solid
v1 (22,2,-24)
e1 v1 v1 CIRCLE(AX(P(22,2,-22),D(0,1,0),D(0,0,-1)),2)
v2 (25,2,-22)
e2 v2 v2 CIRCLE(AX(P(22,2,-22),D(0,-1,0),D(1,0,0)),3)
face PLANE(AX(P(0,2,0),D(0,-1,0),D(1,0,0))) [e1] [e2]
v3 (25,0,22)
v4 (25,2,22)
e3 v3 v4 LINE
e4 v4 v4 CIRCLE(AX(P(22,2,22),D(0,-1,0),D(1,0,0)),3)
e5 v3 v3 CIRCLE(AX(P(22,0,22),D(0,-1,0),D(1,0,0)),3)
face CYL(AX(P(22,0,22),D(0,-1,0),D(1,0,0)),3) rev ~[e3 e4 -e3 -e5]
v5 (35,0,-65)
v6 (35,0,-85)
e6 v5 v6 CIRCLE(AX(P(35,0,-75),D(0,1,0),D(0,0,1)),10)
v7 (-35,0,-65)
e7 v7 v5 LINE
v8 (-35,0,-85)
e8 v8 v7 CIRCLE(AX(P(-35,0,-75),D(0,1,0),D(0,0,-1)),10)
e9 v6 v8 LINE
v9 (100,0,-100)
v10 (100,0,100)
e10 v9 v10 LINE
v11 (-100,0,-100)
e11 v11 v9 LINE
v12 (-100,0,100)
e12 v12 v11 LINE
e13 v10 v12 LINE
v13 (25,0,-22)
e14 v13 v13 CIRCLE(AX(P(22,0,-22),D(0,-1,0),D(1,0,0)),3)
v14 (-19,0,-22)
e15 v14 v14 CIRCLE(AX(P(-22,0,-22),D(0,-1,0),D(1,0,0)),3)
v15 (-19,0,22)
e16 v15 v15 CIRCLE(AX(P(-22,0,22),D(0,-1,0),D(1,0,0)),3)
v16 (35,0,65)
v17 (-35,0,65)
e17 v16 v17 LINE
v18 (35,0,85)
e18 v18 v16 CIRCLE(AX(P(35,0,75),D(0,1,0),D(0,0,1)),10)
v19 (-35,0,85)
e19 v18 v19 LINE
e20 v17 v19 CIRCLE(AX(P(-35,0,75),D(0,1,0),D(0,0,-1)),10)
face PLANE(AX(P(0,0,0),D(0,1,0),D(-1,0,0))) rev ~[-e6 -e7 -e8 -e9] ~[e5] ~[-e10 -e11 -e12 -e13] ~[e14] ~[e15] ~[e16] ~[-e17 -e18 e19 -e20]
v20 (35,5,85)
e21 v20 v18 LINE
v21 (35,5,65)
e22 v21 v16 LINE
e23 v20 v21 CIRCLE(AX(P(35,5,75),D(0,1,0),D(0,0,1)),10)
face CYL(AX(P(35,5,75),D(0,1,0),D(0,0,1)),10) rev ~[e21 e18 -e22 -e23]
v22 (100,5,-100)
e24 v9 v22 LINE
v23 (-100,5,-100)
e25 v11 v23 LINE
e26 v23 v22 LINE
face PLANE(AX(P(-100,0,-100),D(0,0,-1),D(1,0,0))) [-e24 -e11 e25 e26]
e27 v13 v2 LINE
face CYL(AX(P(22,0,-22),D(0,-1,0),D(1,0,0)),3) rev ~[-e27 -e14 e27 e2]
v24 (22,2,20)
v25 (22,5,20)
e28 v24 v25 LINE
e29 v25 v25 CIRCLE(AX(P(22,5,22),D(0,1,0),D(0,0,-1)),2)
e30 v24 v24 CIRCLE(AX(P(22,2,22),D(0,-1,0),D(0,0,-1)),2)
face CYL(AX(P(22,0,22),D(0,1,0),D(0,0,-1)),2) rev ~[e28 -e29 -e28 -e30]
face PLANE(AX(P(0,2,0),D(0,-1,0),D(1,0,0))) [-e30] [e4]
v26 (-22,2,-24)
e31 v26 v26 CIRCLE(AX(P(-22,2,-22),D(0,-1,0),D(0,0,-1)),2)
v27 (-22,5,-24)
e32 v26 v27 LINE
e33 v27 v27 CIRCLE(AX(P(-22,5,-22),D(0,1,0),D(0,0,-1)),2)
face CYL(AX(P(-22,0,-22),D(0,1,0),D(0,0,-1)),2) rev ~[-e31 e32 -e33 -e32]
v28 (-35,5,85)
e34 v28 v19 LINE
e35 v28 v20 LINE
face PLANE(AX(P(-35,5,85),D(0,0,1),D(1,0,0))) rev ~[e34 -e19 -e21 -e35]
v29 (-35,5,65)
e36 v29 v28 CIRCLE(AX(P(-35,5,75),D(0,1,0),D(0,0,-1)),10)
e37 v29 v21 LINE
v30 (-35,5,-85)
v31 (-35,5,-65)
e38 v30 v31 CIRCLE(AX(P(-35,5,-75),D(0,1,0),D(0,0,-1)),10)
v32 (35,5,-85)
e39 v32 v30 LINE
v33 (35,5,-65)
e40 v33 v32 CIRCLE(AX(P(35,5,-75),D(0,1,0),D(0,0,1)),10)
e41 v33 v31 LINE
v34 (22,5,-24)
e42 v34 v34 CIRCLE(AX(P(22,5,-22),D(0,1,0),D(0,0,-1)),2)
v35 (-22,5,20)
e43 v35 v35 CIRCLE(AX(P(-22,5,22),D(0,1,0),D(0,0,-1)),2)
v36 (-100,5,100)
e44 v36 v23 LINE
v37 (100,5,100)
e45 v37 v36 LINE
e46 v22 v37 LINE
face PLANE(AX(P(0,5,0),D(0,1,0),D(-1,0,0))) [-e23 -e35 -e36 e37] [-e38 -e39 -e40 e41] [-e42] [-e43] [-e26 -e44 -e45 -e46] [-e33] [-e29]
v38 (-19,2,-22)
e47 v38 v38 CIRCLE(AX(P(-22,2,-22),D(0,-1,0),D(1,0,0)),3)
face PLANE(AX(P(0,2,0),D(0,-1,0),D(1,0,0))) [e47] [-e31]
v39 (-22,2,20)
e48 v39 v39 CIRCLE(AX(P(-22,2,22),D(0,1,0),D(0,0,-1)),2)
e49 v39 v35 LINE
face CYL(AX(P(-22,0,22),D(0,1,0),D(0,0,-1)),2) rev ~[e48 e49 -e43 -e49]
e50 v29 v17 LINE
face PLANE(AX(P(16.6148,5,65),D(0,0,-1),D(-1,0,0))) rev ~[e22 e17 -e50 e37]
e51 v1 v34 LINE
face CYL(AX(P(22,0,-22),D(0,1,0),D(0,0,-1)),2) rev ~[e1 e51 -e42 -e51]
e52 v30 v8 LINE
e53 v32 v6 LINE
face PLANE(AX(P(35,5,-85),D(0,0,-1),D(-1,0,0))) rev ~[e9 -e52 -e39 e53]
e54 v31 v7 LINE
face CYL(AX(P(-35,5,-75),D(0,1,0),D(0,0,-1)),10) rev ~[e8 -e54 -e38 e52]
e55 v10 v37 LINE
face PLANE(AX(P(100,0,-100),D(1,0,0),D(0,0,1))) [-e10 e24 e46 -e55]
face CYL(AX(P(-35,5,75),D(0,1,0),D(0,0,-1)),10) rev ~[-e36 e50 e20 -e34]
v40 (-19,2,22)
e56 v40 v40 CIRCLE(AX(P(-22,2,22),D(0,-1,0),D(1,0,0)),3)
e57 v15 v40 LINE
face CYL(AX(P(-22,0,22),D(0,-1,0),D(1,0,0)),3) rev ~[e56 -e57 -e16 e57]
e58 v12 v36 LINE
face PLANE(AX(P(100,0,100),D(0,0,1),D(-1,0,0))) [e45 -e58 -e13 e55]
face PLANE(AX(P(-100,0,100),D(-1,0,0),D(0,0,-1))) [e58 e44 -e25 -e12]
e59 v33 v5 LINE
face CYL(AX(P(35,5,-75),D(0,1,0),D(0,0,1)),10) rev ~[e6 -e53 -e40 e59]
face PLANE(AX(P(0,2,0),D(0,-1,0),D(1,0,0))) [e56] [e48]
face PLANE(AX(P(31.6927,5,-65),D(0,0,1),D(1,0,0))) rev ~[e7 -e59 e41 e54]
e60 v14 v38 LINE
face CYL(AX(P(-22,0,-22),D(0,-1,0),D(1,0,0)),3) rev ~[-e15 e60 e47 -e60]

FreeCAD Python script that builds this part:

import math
import FreeCAD as App
import Part
import Sketcher
from FreeCAD import Vector


def add_polygon(sketch, points):
    """Adds a closed chain of lines whose ends are joined by coincident constraints."""
    first, n = sketch.GeometryCount, len(points)
    for a, b in zip(points, points[1:] + points[:1]):
        sketch.addGeometry(Part.LineSegment(App.Vector(*a, 0), App.Vector(*b, 0)), False)
    for i in range(n):
        sketch.addConstraint(Sketcher.Constraint("Coincident", first + i, 2, first + (i + 1) % n, 1))

doc = App.newDocument("Part")
body = doc.addObject("PartDesign::Body", "Body")

# Sketch on XZ plane
sketch1 = body.newObject("Sketcher::SketchObject", "Sketch")
sketch1.AttachmentSupport = (doc.getObject("XZ_Plane"), [""])
sketch1.MapMode = "FlatFace"
add_polygon(sketch1, [(-100, 100), (100, 100), (100, -100), (-100, -100)])  # lines 0-3
sketch1.addConstraint(Sketcher.Constraint("Horizontal", 0))
sketch1.addConstraint(Sketcher.Constraint("Vertical", 1))
sketch1.addConstraint(Sketcher.Constraint("Horizontal", 2))
sketch1.addConstraint(Sketcher.Constraint("Vertical", 3))
sketch1.addConstraint(Sketcher.Constraint("Symmetric", 0, 2, 2, 2, -1, 1))
sketch1.addConstraint(Sketcher.Constraint("Equal", 2, 1))
sketch1.addConstraint(Sketcher.Constraint("DistanceX", 0, 1, 0, 2, 200.0))
pad1 = body.newObject("PartDesign::Pad", "Pad")
pad1.Profile = sketch1
pad1.Length = 5
pad1.Reversed = True

# Sketch on XZ plane
sketch2 = body.newObject("Sketcher::SketchObject", "Sketch001")
sketch2.AttachmentSupport = (doc.getObject("XZ_Plane"), [""])
sketch2.MapMode = "FlatFace"
sketch2.addGeometry(Part.Circle(Vector(22, 22, 0), Vector(0, 0, 1), 2), False)
sketch2.addGeometry(Part.Circle(Vector(22, -22, 0), Vector(0, 0, 1), 2), False)
sketch2.addGeometry(Part.Circle(Vector(-22, -22, 0), Vector(0, 0, 1), 2), False)
sketch2.addGeometry(Part.Circle(Vector(-22, 22, 0), Vector(0, 0, 1), 2), False)
sketch2.addConstraint(Sketcher.Constraint("Equal", 0, 1))
sketch2.addConstraint(Sketcher.Constraint("Equal", 1, 2))
sketch2.addConstraint(Sketcher.Constraint("Equal", 2, 3))
sketch2.addConstraint(Sketcher.Constraint("Symmetric", 0, 3, 2, 3, -1, 1))
sketch2.addConstraint(Sketcher.Constraint("Symmetric", 1, 3, 3, 3, -1, 1))
sketch2.addConstraint(Sketcher.Constraint("Symmetric", 1, 3, 2, 3, -2))
sketch2.addConstraint(Sketcher.Constraint("Diameter", 0, 4.0))
sketch2.addConstraint(Sketcher.Constraint("DistanceX", -1, 1, 0, 3, 22.0))
sketch2.addConstraint(Sketcher.Constraint("DistanceY", -1, 1, 0, 3, 22.0))
doc.recompute()
hole = body.newObject("PartDesign::Hole", "Hole")
hole.Profile = sketch2
hole.ThreadType = "None"
hole.Diameter = 4
hole.DepthType = "Dimension"
hole.Depth = 49.3
hole.DrillPoint = "Flat"

# Sketch on XZ plane
sketch3 = body.newObject("Sketcher::SketchObject", "Sketch002")
sketch3.AttachmentSupport = (doc.getObject("XZ_Plane"), [""])
sketch3.MapMode = "FlatFace"
sketch3.addGeometry(Part.Circle(Vector(-22, 22, 0), Vector(0, 0, 1), 3), False)
sketch3.addGeometry(Part.Circle(Vector(22, 22, 0), Vector(0, 0, 1), 3), False)
sketch3.addGeometry(Part.Circle(Vector(22, 22, 0), Vector(0, 0, 1), 2), False)
sketch3.addGeometry(Part.Circle(Vector(-22, -22, 0), Vector(0, 0, 1), 3), False)
sketch3.addGeometry(Part.Circle(Vector(-22, -22, 0), Vector(0, 0, 1), 2), False)
sketch3.addGeometry(Part.Circle(Vector(22, -22, 0), Vector(0, 0, 1), 3), False)
sketch3.addConstraint(Sketcher.Constraint("Coincident", 2, 3, 1, 3))
sketch3.addConstraint(Sketcher.Constraint("Coincident", 4, 3, 3, 3))
sketch3.addConstraint(Sketcher.Constraint("Equal", 0, 1))
sketch3.addConstraint(Sketcher.Constraint("Equal", 1, 3))
sketch3.addConstraint(Sketcher.Constraint("Equal", 2, 4))
sketch3.addConstraint(Sketcher.Constraint("Equal", 3, 5))
sketch3.addConstraint(Sketcher.Constraint("Symmetric", 1, 3, 3, 3, -1, 1))
sketch3.addConstraint(Sketcher.Constraint("Symmetric", 0, 3, 5, 3, -1, 1))
sketch3.addConstraint(Sketcher.Constraint("Symmetric", 0, 3, 1, 3, -2))
sketch3.addConstraint(Sketcher.Constraint("Diameter", 0, 6.0))
sketch3.addConstraint(Sketcher.Constraint("Diameter", 2, 4.0))
sketch3.addConstraint(Sketcher.Constraint("DistanceX", 0, 3, -1, 1, 22.0))
sketch3.addConstraint(Sketcher.Constraint("DistanceY", -1, 1, 0, 3, 22.0))
pocket1 = body.newObject("PartDesign::Pocket", "Pocket")
pocket1.Profile = sketch3
pocket1.Length = 2

# Sketch on XZ plane
sketch4 = body.newObject("Sketcher::SketchObject", "Sketch003")
sketch4.AttachmentSupport = (doc.getObject("XZ_Plane"), [""])
sketch4.MapMode = "FlatFace"
sketch4.AttachmentOffset = App.Placement(Vector(0, 0, -5), App.Rotation())
sketch4.addGeometry(Part.ArcOfCircle(Part.Circle(Vector(-35, -75, 0), Vector(0, 0, 1), 10), math.radians(90), math.radians(270)), False)
sketch4.addGeometry(Part.LineSegment(Vector(-35, -65, 0), Vector(35, -65, 0)), False)
sketch4.addGeometry(Part.ArcOfCircle(Part.Circle(Vector(35, -75, 0), Vector(0, 0, 1), 10), math.radians(-90), math.radians(90)), False)
sketch4.addGeometry(Part.LineSegment(Vector(35, -85, 0), Vector(-35, -85, 0)), False)
sketch4.addGeometry(Part.ArcOfCircle(Part.Circle(Vector(-35, 75, 0), Vector(0, 0, 1), 10), math.radians(90), math.radians(270)), False)
sketch4.addGeometry(Part.LineSegment(Vector(-35, 85, 0), Vector(35, 85, 0)), False)
sketch4.addGeometry(Part.ArcOfCircle(Part.Circle(Vector(35, 75, 0), Vector(0, 0, 1), 10), math.radians(-90), math.radians(90)), False)
sketch4.addGeometry(Part.LineSegment(Vector(35, 65, 0), Vector(-35, 65, 0)), False)
sketch4.addConstraint(Sketcher.Constraint("Tangent", 0, 1, 1, 1))
sketch4.addConstraint(Sketcher.Constraint("Tangent", 1, 2, 2, 2))
sketch4.addConstraint(Sketcher.Constraint("Tangent", 2, 1, 3, 1))
sketch4.addConstraint(Sketcher.Constraint("Tangent", 3, 2, 0, 2))
sketch4.addConstraint(Sketcher.Constraint("Tangent", 4, 1, 5, 1))
sketch4.addConstraint(Sketcher.Constraint("Tangent", 5, 2, 6, 2))
sketch4.addConstraint(Sketcher.Constraint("Tangent", 6, 1, 7, 1))
sketch4.addConstraint(Sketcher.Constraint("Tangent", 7, 2, 4, 2))
sketch4.addConstraint(Sketcher.Constraint("Horizontal", 1))
sketch4.addConstraint(Sketcher.Constraint("Horizontal", 3))
sketch4.addConstraint(Sketcher.Constraint("Horizontal", 5))
sketch4.addConstraint(Sketcher.Constraint("Horizontal", 7))
sketch4.addConstraint(Sketcher.Constraint("Equal", 2, 4))
sketch4.addConstraint(Sketcher.Constraint("Symmetric", 2, 3, 4, 3, -1, 1))
sketch4.addConstraint(Sketcher.Constraint("Vertical", 0, 3, 4, 3))
sketch4.addConstraint(Sketcher.Constraint("Vertical", 2, 3, 6, 3))
sketch4.addConstraint(Sketcher.Constraint("Radius", 0, 10.0))
sketch4.addConstraint(Sketcher.Constraint("DistanceX", 1, 1, 1, 2, 70.0))
sketch4.addConstraint(Sketcher.Constraint("DistanceY", 0, 3, -1, 1, 75.0))
pocket2 = body.newObject("PartDesign::Pocket", "Pocket001")
pocket2.Profile = sketch4
pocket2.Length = 5
pocket2.Reversed = True

doc.recompute()
